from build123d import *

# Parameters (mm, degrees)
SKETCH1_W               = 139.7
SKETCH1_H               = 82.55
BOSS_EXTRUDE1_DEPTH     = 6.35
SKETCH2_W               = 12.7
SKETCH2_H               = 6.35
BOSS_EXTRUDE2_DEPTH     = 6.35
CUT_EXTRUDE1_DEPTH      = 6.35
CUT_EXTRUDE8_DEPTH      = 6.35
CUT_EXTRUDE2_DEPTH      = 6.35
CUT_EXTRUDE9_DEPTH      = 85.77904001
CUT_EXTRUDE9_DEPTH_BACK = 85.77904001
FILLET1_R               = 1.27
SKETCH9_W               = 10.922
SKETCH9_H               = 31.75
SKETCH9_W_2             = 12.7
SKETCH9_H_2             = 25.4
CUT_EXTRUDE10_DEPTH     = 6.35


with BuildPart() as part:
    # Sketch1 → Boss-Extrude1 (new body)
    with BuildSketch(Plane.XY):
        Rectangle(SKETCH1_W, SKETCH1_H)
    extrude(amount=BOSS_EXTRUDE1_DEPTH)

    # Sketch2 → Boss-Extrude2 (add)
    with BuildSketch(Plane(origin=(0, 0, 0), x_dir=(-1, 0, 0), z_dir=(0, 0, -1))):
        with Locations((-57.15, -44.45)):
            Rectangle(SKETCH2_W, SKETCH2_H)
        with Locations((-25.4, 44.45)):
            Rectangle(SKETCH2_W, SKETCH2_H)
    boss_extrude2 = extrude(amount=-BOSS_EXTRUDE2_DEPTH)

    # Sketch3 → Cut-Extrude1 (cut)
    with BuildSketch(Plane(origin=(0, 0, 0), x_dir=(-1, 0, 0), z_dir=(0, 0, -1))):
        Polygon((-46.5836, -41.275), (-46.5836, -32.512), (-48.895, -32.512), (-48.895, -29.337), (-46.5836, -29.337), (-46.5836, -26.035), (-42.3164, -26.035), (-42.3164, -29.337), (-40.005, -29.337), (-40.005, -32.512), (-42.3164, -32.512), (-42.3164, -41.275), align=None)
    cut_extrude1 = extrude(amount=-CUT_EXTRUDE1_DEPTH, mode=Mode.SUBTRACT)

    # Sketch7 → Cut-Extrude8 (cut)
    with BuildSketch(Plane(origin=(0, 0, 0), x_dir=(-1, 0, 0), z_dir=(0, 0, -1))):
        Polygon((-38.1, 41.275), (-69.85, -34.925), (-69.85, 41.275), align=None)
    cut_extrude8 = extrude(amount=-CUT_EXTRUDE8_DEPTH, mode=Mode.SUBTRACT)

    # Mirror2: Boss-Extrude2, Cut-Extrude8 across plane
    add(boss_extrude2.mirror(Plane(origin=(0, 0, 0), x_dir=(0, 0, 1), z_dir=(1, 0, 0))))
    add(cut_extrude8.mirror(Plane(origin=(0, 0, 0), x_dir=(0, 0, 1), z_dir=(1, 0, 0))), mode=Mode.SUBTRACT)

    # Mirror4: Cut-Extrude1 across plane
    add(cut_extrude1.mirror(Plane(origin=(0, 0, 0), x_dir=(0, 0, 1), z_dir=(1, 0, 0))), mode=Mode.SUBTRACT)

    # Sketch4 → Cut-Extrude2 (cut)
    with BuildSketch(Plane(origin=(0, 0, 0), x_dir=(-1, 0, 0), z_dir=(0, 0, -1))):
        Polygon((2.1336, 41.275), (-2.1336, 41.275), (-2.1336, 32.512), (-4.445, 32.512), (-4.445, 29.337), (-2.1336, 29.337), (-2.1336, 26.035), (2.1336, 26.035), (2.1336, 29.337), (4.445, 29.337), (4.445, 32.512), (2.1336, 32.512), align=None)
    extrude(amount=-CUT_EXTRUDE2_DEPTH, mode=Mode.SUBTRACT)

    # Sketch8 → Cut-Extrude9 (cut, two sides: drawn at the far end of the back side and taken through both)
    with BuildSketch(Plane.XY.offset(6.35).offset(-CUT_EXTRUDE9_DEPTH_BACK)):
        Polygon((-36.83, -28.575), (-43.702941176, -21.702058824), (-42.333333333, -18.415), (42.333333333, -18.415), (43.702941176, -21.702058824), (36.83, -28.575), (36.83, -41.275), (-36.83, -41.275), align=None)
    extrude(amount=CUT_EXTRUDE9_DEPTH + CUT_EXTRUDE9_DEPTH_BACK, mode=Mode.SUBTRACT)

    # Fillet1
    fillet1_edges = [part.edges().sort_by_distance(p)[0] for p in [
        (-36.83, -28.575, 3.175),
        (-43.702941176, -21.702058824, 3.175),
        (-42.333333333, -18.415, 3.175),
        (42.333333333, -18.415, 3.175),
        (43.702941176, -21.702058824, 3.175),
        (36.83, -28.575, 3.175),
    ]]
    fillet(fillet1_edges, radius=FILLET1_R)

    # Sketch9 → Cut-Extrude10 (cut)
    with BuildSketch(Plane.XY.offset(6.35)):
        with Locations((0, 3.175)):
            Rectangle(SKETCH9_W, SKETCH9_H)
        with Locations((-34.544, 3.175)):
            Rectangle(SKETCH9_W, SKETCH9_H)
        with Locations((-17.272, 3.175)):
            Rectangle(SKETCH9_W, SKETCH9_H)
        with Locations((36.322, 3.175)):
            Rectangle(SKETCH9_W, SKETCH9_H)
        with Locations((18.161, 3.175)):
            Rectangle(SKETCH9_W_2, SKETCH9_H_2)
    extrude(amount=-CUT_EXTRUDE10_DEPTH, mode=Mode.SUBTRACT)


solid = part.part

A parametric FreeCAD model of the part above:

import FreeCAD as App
import Part
import Sketcher
Q = App.Units.Quantity


def edges_at(feature, points):
    """Names of the edges that pass closest to the given points."""
    edges = feature.Shape.Edges
    near = lambda p: min(range(len(edges)), key=lambda i: edges[i].distToShape(Part.Vertex(*p))[0])
    return sorted({f"Edge{near(p) + 1}" for p in points})

doc = App.newDocument("Part")
body = doc.addObject("PartDesign::Body", "Body")

# Sketch on XY plane
sketch1 = doc.addObject("Sketcher::SketchObject", "Sketch")
body.addObject(sketch1)
sketch1.AttachmentSupport = (doc.XY_Plane, [""])
sketch1.MapMode = "FlatFace"
sketch1.addGeometry([
    Part.LineSegment(App.Vector(-70, 41, 0), App.Vector(-70, -41, 0)),
    Part.LineSegment(App.Vector(-70, -41, 0), App.Vector(70, -41, 0)),
    Part.LineSegment(App.Vector(70, -41, 0), App.Vector(70, 41, 0)),
    Part.LineSegment(App.Vector(70, 41, 0), App.Vector(-70, 41, 0)),
], False)
sketch1.addConstraint([
    Sketcher.Constraint("Coincident", 0, 2, 1, 1),
    Sketcher.Constraint("Coincident", 1, 2, 2, 1),
    Sketcher.Constraint("Coincident", 2, 2, 3, 1),
    Sketcher.Constraint("Coincident", 3, 2, 0, 1),
    Sketcher.Constraint("Vertical", 0),
    Sketcher.Constraint("Horizontal", 1),
    Sketcher.Constraint("Vertical", 2),
    Sketcher.Constraint("Horizontal", 3),
    Sketcher.Constraint("Symmetric", 0, 2, 2, 2, -1, 1),
    Sketcher.Constraint("DistanceX", 1, 1, 1, 2, Q("5.5 in")),
    Sketcher.Constraint("DistanceY", 0, 2, 0, 1, Q("3.25 in")),
])
pad1 = doc.addObject("PartDesign::Pad", "Pad")
body.addObject(pad1)
pad1.Profile = sketch1
pad1.Length = Q("0.25 in")

# Sketch on XY plane
sketch2 = doc.addObject("Sketcher::SketchObject", "Sketch001")
body.addObject(sketch2)
sketch2.AttachmentSupport = (doc.XY_Plane, [""])
sketch2.MapMode = "FlatFace"
sketch2.addGeometry([
    Part.LineSegment(App.Vector(64, -41, 0), App.Vector(64, -48, 0)),  # 0
    Part.LineSegment(App.Vector(64, -48, 0), App.Vector(51, -48, 0)),  # 1
    Part.LineSegment(App.Vector(51, -48, 0), App.Vector(51, -41, 0)),  # 2
    Part.LineSegment(App.Vector(51, -41, 0), App.Vector(64, -41, 0)),  # 3
    Part.LineSegment(App.Vector(32, 48, 0), App.Vector(32, 41, 0)),  # 4
    Part.LineSegment(App.Vector(32, 41, 0), App.Vector(19, 41, 0)),  # 5
    Part.LineSegment(App.Vector(19, 41, 0), App.Vector(19, 48, 0)),  # 6
    Part.LineSegment(App.Vector(19, 48, 0), App.Vector(32, 48, 0)),  # 7
], False)
sketch2.addConstraint([
    Sketcher.Constraint("Coincident", 0, 2, 1, 1),
    Sketcher.Constraint("Coincident", 1, 2, 2, 1),
    Sketcher.Constraint("Coincident", 2, 2, 3, 1),
    Sketcher.Constraint("Coincident", 3, 2, 0, 1),
    Sketcher.Constraint("Coincident", 4, 2, 5, 1),
    Sketcher.Constraint("Coincident", 5, 2, 6, 1),
    Sketcher.Constraint("Coincident", 6, 2, 7, 1),
    Sketcher.Constraint("Coincident", 7, 2, 4, 1),
    Sketcher.Constraint("Vertical", 0),
    Sketcher.Constraint("Horizontal", 1),
    Sketcher.Constraint("Vertical", 2),
    Sketcher.Constraint("Horizontal", 3),
    Sketcher.Constraint("Vertical", 4),
    Sketcher.Constraint("Horizontal", 5),
    Sketcher.Constraint("Vertical", 6),
    Sketcher.Constraint("Horizontal", 7),
    Sketcher.Constraint("Equal", 3, 5),
    Sketcher.Constraint("Equal", 2, 4),
    Sketcher.Constraint("DistanceX", 1, 2, 1, 1, Q("0.5 in")),
    Sketcher.Constraint("DistanceX", -1, 1, 1, 2, Q("2 in")),
    Sketcher.Constraint("DistanceY", 0, 2, 0, 1, Q("0.25 in")),
    Sketcher.Constraint("DistanceY", 1, 2, 4, 2, Q("3.5 in")),
    Sketcher.Constraint("DistanceX", -1, 1, 4, 2, Q("1.25 in")),
    Sketcher.Constraint("DistanceY", 0, 2, -1, 1, Q("1.875 in")),
])
pad2 = doc.addObject("PartDesign::Pad", "Pad001")
body.addObject(pad2)
pad2.Profile = sketch2
pad2.Length = Q("0.25 in")

# Sketch on XY plane
sketch3 = doc.addObject("Sketcher::SketchObject", "Sketch002")
body.addObject(sketch3)
sketch3.AttachmentSupport = (doc.XY_Plane, [""])
sketch3.MapMode = "FlatFace"
sketch3.addGeometry([
    Part.LineSegment(App.Vector(46.6, -32.5, 0), App.Vector(46.6, -41.3, 0)),  # 0
    Part.LineSegment(App.Vector(46.6, -41.3, 0), App.Vector(42.3, -41.3, 0)),  # 1
    Part.LineSegment(App.Vector(42.3, -41.3, 0), App.Vector(42.3, -32.5, 0)),  # 2
    Part.LineSegment(App.Vector(42.3, -32.5, 0), App.Vector(40, -32.5, 0)),  # 3
    Part.LineSegment(App.Vector(40, -32.5, 0), App.Vector(40, -29.3, 0)),  # 4
    Part.LineSegment(App.Vector(40, -29.3, 0), App.Vector(42.3, -29.3, 0)),  # 5
    Part.LineSegment(App.Vector(42.3, -29.3, 0), App.Vector(42.3, -26, 0)),  # 6
    Part.LineSegment(App.Vector(42.3, -26, 0), App.Vector(46.6, -26, 0)),  # 7
    Part.LineSegment(App.Vector(46.6, -26, 0), App.Vector(46.6, -29.3, 0)),  # 8
    Part.LineSegment(App.Vector(46.6, -29.3, 0), App.Vector(48.9, -29.3, 0)),  # 9
    Part.LineSegment(App.Vector(48.9, -29.3, 0), App.Vector(48.9, -32.5, 0)),  # 10
    Part.LineSegment(App.Vector(48.9, -32.5, 0), App.Vector(46.6, -32.5, 0)),  # 11
], False)
sketch3.addConstraint([
    Sketcher.Constraint("Coincident", 0, 2, 1, 1),
    Sketcher.Constraint("Coincident", 1, 2, 2, 1),
    Sketcher.Constraint("Coincident", 2, 2, 3, 1),
    Sketcher.Constraint("Coincident", 3, 2, 4, 1),
    Sketcher.Constraint("Coincident", 4, 2, 5, 1),
    Sketcher.Constraint("Coincident", 5, 2, 6, 1),
    Sketcher.Constraint("Coincident", 6, 2, 7, 1),
    Sketcher.Constraint("Coincident", 7, 2, 8, 1),
    Sketcher.Constraint("Coincident", 8, 2, 9, 1),
    Sketcher.Constraint("Coincident", 9, 2, 10, 1),
    Sketcher.Constraint("Coincident", 10, 2, 11, 1),
    Sketcher.Constraint("Coincident", 11, 2, 0, 1),
    Sketcher.Constraint("Vertical", 0),
    Sketcher.Constraint("Horizontal", 1),
    Sketcher.Constraint("Vertical", 2),
    Sketcher.Constraint("Horizontal", 3),
    Sketcher.Constraint("Vertical", 4),
    Sketcher.Constraint("Horizontal", 5),
    Sketcher.Constraint("Vertical", 6),
    Sketcher.Constraint("Horizontal", 7),
    Sketcher.Constraint("Vertical", 8),
    Sketcher.Constraint("Horizontal", 9),
    Sketcher.Constraint("Vertical", 10),
    Sketcher.Constraint("Horizontal", 11),
    Sketcher.Constraint("Horizontal", 5, 2, 8, 2),
    Sketcher.Constraint("Horizontal", 3, 2, 10, 2),
    Sketcher.Constraint("Vertical", 2, 2, 5, 2),
    Sketcher.Constraint("Vertical", 0, 2, 7, 2),
    Sketcher.Constraint("Equal", 5, 9),
    Sketcher.Constraint("DistanceY", 6, 1, 6, 2, Q("0.13 in")),
    Sketcher.Constraint("DistanceY", 1, 2, 6, 2, Q("0.6 in")),
    Sketcher.Constraint("DistanceX", 1, 2, 1, 1, Q("0.168 in")),
    Sketcher.Constraint("DistanceX", 3, 2, 3, 1, Q("0.091 in")),
    Sketcher.Constraint("DistanceY", 0, 2, 0, 1, Q("0.345 in")),
    Sketcher.Constraint("DistanceY", 2, 2, -1, 1, Q("1.28 in")),
    Sketcher.Constraint("DistanceX", -1, 1, 0, 2, Q("1.834 in")),
])
pocket1 = doc.addObject("PartDesign::Pocket", "Pocket")
body.addObject(pocket1)
pocket1.Profile = sketch3
pocket1.Length = Q("0.25 in")
pocket1.Reversed = True

# Sketch on XY plane
sketch4 = doc.addObject("Sketcher::SketchObject", "Sketch003")
body.addObject(sketch4)
sketch4.AttachmentSupport = (doc.XY_Plane, [""])
sketch4.MapMode = "FlatFace"
sketch4.addGeometry([
    Part.LineSegment(App.Vector(70, -35, 0), App.Vector(38, 41, 0)),
    Part.LineSegment(App.Vector(38, 41, 0), App.Vector(70, 41, 0)),
    Part.LineSegment(App.Vector(70, 41, 0), App.Vector(70, -35, 0)),
], False)
sketch4.addConstraint([
    Sketcher.Constraint("Coincident", 0, 2, 1, 1),
    Sketcher.Constraint("Coincident", 1, 2, 2, 1),
    Sketcher.Constraint("Coincident", 2, 2, 0, 1),
    Sketcher.Constraint("Horizontal", 1),
    Sketcher.Constraint("Vertical", 2),
    Sketcher.Constraint("DistanceY", 2, 2, 2, 1, Q("3 in")),
    Sketcher.Constraint("DistanceX", 1, 1, 1, 2, Q("1.25 in")),
    Sketcher.Constraint("DistanceX", -1, 1, 0, 2, Q("1.5 in")),
    Sketcher.Constraint("DistanceY", -1, 1, 0, 2, Q("1.625 in")),
])
pocket2 = doc.addObject("PartDesign::Pocket", "Pocket001")
body.addObject(pocket2)
pocket2.Profile = sketch4
pocket2.Length = Q("0.25 in")
pocket2.Reversed = True
doc.recompute()

mirrored = doc.addObject("PartDesign::Mirrored", "Mirrored")
body.addObject(mirrored)
mirrored.Originals = [pad2, pocket2]
mirrored.MirrorPlane = (doc.YZ_Plane, [""])
body.Tip = mirrored
doc.recompute()

mirrored2 = doc.addObject("PartDesign::Mirrored", "Mirrored001")
body.addObject(mirrored2)
mirrored2.Originals = [pocket1]
mirrored2.MirrorPlane = (doc.YZ_Plane, [""])
body.Tip = mirrored2

# Sketch on XY plane
sketch5 = doc.addObject("Sketcher::SketchObject", "Sketch004")
body.addObject(sketch5)
sketch5.AttachmentSupport = (doc.XY_Plane, [""])
sketch5.MapMode = "FlatFace"
sketch5.addGeometry([
    Part.LineSegment(App.Vector(-2.1, 41.3, 0), App.Vector(2.1, 41.3, 0)),  # 0
    Part.LineSegment(App.Vector(2.1, 41.3, 0), App.Vector(2.1, 32.5, 0)),  # 1
    Part.LineSegment(App.Vector(2.1, 32.5, 0), App.Vector(4.4, 32.5, 0)),  # 2
    Part.LineSegment(App.Vector(4.4, 32.5, 0), App.Vector(4.4, 29.3, 0)),  # 3
    Part.LineSegment(App.Vector(4.4, 29.3, 0), App.Vector(2.1, 29.3, 0)),  # 4
    Part.LineSegment(App.Vector(2.1, 29.3, 0), App.Vector(2.1, 26, 0)),  # 5
    Part.LineSegment(App.Vector(2.1, 26, 0), App.Vector(-2.1, 26, 0)),  # 6
    Part.LineSegment(App.Vector(-2.1, 26, 0), App.Vector(-2.1, 29.3, 0)),  # 7
    Part.LineSegment(App.Vector(-2.1, 29.3, 0), App.Vector(-4.4, 29.3, 0)),  # 8
    Part.LineSegment(App.Vector(-4.4, 29.3, 0), App.Vector(-4.4, 32.5, 0)),  # 9
    Part.LineSegment(App.Vector(-4.4, 32.5, 0), App.Vector(-2.1, 32.5, 0)),  # 10
    Part.LineSegment(App.Vector(-2.1, 32.5, 0), App.Vector(-2.1, 41.3, 0)),  # 11
], False)
sketch5.addConstraint([
    Sketcher.Constraint("Coincident", 0, 2, 1, 1),
    Sketcher.Constraint("Coincident", 1, 2, 2, 1),
    Sketcher.Constraint("Coincident", 2, 2, 3, 1),
    Sketcher.Constraint("Coincident", 3, 2, 4, 1),
    Sketcher.Constraint("Coincident", 4, 2, 5, 1),
    Sketcher.Constraint("Coincident", 5, 2, 6, 1),
    Sketcher.Constraint("Coincident", 6, 2, 7, 1),
    Sketcher.Constraint("Coincident", 7, 2, 8, 1),
    Sketcher.Constraint("Coincident", 8, 2, 9, 1),
    Sketcher.Constraint("Coincident", 9, 2, 10, 1),
    Sketcher.Constraint("Coincident", 10, 2, 11, 1),
    Sketcher.Constraint("Coincident", 11, 2, 0, 1),
    Sketcher.Constraint("Horizontal", 0),
    Sketcher.Constraint("Vertical", 1),
    Sketcher.Constraint("Horizontal", 2),
    Sketcher.Constraint("Vertical", 3),
    Sketcher.Constraint("Horizontal", 4),
    Sketcher.Constraint("Vertical", 5),
    Sketcher.Constraint("Horizontal", 6),
    Sketcher.Constraint("Vertical", 7),
    Sketcher.Constraint("Horizontal", 8),
    Sketcher.Constraint("Vertical", 9),
    Sketcher.Constraint("Horizontal", 10),
    Sketcher.Constraint("Vertical", 11),
    Sketcher.Constraint("Symmetric", 4, 2, 7, 2, -2),
    Sketcher.Constraint("Symmetric", 2, 2, 9, 2, -2),
    Sketcher.Constraint("Vertical", 1, 2, 4, 2),
    Sketcher.Constraint("Vertical", 7, 2, 10, 2),
    Sketcher.Constraint("DistanceY", 5, 2, 5, 1, Q("0.13 in")),
    Sketcher.Constraint("DistanceY", 5, 2, 0, 2, Q("0.6 in")),
    Sketcher.Constraint("DistanceX", 0, 1, 0, 2, Q("0.168 in")),
    Sketcher.Constraint("DistanceX", 2, 1, 2, 2, Q("0.091 in")),
    Sketcher.Constraint("DistanceY", 1, 2, 1, 1, Q("0.345 in")),
    Sketcher.Constraint("DistanceY", -1, 1, 1, 2, Q("1.28 in")),
])
pocket3 = doc.addObject("PartDesign::Pocket", "Pocket002")
body.addObject(pocket3)
pocket3.Profile = sketch5
pocket3.Length = Q("0.25 in")
pocket3.Reversed = True

# Sketch on XY plane
sketch6 = doc.addObject("Sketcher::SketchObject", "Sketch005")
body.addObject(sketch6)
sketch6.AttachmentSupport = (doc.XY_Plane, [""])
sketch6.MapMode = "FlatFace"
sketch6.AttachmentOffset = App.Placement(App.Vector(0, 0, 0.25 * 25.4), App.Rotation())
sketch6.addGeometry([
    Part.LineSegment(App.Vector(-43.7, -21.7, 0), App.Vector(-36.8, -28.6, 0)),  # 0
    Part.LineSegment(App.Vector(-36.8, -28.6, 0), App.Vector(-36.8, -41.3, 0)),  # 1
    Part.LineSegment(App.Vector(-36.8, -41.3, 0), App.Vector(36.8, -41.3, 0)),  # 2
    Part.LineSegment(App.Vector(36.8, -41.3, 0), App.Vector(36.8, -28.6, 0)),  # 3
    Part.LineSegment(App.Vector(36.8, -28.6, 0), App.Vector(43.7, -21.7, 0)),  # 4
    Part.LineSegment(App.Vector(43.7, -21.7, 0), App.Vector(42.3, -18.4, 0)),  # 5
    Part.LineSegment(App.Vector(42.3, -18.4, 0), App.Vector(-42.3, -18.4, 0)),  # 6
    Part.LineSegment(App.Vector(-42.3, -18.4, 0), App.Vector(-43.7, -21.7, 0)),  # 7
], False)
sketch6.addConstraint([
    Sketcher.Constraint("Coincident", 0, 2, 1, 1),
    Sketcher.Constraint("Coincident", 1, 2, 2, 1),
    Sketcher.Constraint("Coincident", 2, 2, 3, 1),
    Sketcher.Constraint("Coincident", 3, 2, 4, 1),
    Sketcher.Constraint("Coincident", 4, 2, 5, 1),
    Sketcher.Constraint("Coincident", 5, 2, 6, 1),
    Sketcher.Constraint("Coincident", 6, 2, 7, 1),
    Sketcher.Constraint("Coincident", 7, 2, 0, 1),
    Sketcher.Constraint("Vertical", 1),
    Sketcher.Constraint("Horizontal", 2),
    Sketcher.Constraint("Vertical", 3),
    Sketcher.Constraint("Horizontal", 6),
    Sketcher.Constraint("Symmetric", 0, 2, 3, 2, -2),
    Sketcher.Constraint("Symmetric", 4, 2, 7, 2, -2),
    Sketcher.Constraint("Perpendicular", 0, 4),
    Sketcher.Constraint("Equal", 5, 7),
    Sketcher.Constraint("DistanceX", 2, 1, 2, 2, Q("2.9 in")),
    Sketcher.Constraint("DistanceY", 1, 2, 1, 1, Q("0.5 in")),
    Sketcher.Constraint("DistanceY", 3, 2, 5, 2, Q("0.4 in")),
    Sketcher.Constraint("DistanceY", 0, 2, -1, 1, Q("1.125 in")),
    Sketcher.Constraint("Distance", 5, 3.56098),
    Sketcher.Constraint("DistanceX", 6, 2, 6, 1, 84.666667),
])
pocket4 = doc.addObject("PartDesign::Pocket", "Pocket003")
body.addObject(pocket4)
pocket4.Profile = sketch6
pocket4.Type = "ThroughAll"
pocket4.Midplane = True
doc.recompute()

fillet = doc.addObject("PartDesign::Fillet", "Fillet")
body.addObject(fillet)
fillet.Base = (pocket4, edges_at(pocket4, [
    (-36.83, -28.575, 3.175),
    (-43.703, -21.702, 3.175),
    (-42.333, -18.415, 3.175),
    (42.333, -18.415, 3.175),
    (43.703, -21.702, 3.175),
    (36.83, -28.575, 3.175),
]))
fillet.Radius = Q("0.05 in")

# Sketch on XY plane
sketch7 = doc.addObject("Sketcher::SketchObject", "Sketch006")
body.addObject(sketch7)
sketch7.AttachmentSupport = (doc.XY_Plane, [""])
sketch7.MapMode = "FlatFace"
sketch7.AttachmentOffset = App.Placement(App.Vector(0, 0, 0.25 * 25.4), App.Rotation())
sketch7.addGeometry([
    Part.LineSegment(App.Vector(-5, 19, 0), App.Vector(-5, -13, 0)),  # 0
    Part.LineSegment(App.Vector(-5, -13, 0), App.Vector(5, -13, 0)),  # 1
    Part.LineSegment(App.Vector(5, -13, 0), App.Vector(5, 19, 0)),  # 2
    Part.LineSegment(App.Vector(5, 19, 0), App.Vector(-5, 19, 0)),  # 3
    Part.LineSegment(App.Vector(-40, 19, 0), App.Vector(-40, -13, 0)),  # 4
    Part.LineSegment(App.Vector(-40, -13, 0), App.Vector(-29, -13, 0)),  # 5
    Part.LineSegment(App.Vector(-29, -13, 0), App.Vector(-29, 19, 0)),  # 6
    Part.LineSegment(App.Vector(-29, 19, 0), App.Vector(-40, 19, 0)),  # 7
    Part.LineSegment(App.Vector(-23, 19, 0), App.Vector(-23, -13, 0)),  # 8
    Part.LineSegment(App.Vector(-23, -13, 0), App.Vector(-12, -13, 0)),  # 9
    Part.LineSegment(App.Vector(-12, -13, 0), App.Vector(-12, 19, 0)),  # 10
    Part.LineSegment(App.Vector(-12, 19, 0), App.Vector(-23, 19, 0)),  # 11
    Part.LineSegment(App.Vector(31, 19, 0), App.Vector(31, -13, 0)),  # 12
    Part.LineSegment(App.Vector(31, -13, 0), App.Vector(42, -13, 0)),  # 13
    Part.LineSegment(App.Vector(42, -13, 0), App.Vector(42, 19, 0)),  # 14
    Part.LineSegment(App.Vector(42, 19, 0), App.Vector(31, 19, 0)),  # 15
    Part.LineSegment(App.Vector(12, 16, 0), App.Vector(12, -10, 0)),  # 16
    Part.LineSegment(App.Vector(12, -10, 0), App.Vector(25, -10, 0)),  # 17
    Part.LineSegment(App.Vector(25, -10, 0), App.Vector(25, 16, 0)),  # 18
    Part.LineSegment(App.Vector(25, 16, 0), App.Vector(12, 16, 0)),  # 19
], False)
sketch7.addConstraint([
    Sketcher.Constraint("Coincident", 0, 2, 1, 1),
    Sketcher.Constraint("Coincident", 1, 2, 2, 1),
    Sketcher.Constraint("Coincident", 2, 2, 3, 1),
    Sketcher.Constraint("Coincident", 3, 2, 0, 1),
    Sketcher.Constraint("Coincident", 4, 2, 5, 1),
    Sketcher.Constraint("Coincident", 5, 2, 6, 1),
    Sketcher.Constraint("Coincident", 6, 2, 7, 1),
    Sketcher.Constraint("Coincident", 7, 2, 4, 1),
    Sketcher.Constraint("Coincident", 8, 2, 9, 1),
    Sketcher.Constraint("Coincident", 9, 2, 10, 1),
    Sketcher.Constraint("Coincident", 10, 2, 11, 1),
    Sketcher.Constraint("Coincident", 11, 2, 8, 1),
    Sketcher.Constraint("Coincident", 12, 2, 13, 1),
    Sketcher.Constraint("Coincident", 13, 2, 14, 1),
    Sketcher.Constraint("Coincident", 14, 2, 15, 1),
    Sketcher.Constraint("Coincident", 15, 2, 12, 1),
    Sketcher.Constraint("Coincident", 16, 2, 17, 1),
    Sketcher.Constraint("Coincident", 17, 2, 18, 1),
    Sketcher.Constraint("Coincident", 18, 2, 19, 1),
    Sketcher.Constraint("Coincident", 19, 2, 16, 1),
    Sketcher.Constraint("Vertical", 0),
    Sketcher.Constraint("Horizontal", 1),
    Sketcher.Constraint("Vertical", 2),
    Sketcher.Constraint("Horizontal", 3),
    Sketcher.Constraint("Vertical", 4),
    Sketcher.Constraint("Horizontal", 5),
    Sketcher.Constraint("Vertical", 6),
    Sketcher.Constraint("Horizontal", 7),
    Sketcher.Constraint("Vertical", 8),
    Sketcher.Constraint("Horizontal", 9),
    Sketcher.Constraint("Vertical", 10),
    Sketcher.Constraint("Horizontal", 11),
    Sketcher.Constraint("Vertical", 12),
    Sketcher.Constraint("Horizontal", 13),
    Sketcher.Constraint("Vertical", 14),
    Sketcher.Constraint("Horizontal", 15),
    Sketcher.Constraint("Vertical", 16),
    Sketcher.Constraint("Horizontal", 17),
    Sketcher.Constraint("Vertical", 18),
    Sketcher.Constraint("Horizontal", 19),
    Sketcher.Constraint("Horizontal", 1, 2, 4, 2),
    Sketcher.Constraint("Horizontal", 3, 2, 6, 2),
    Sketcher.Constraint("Horizontal", 5, 2, 8, 2),
    Sketcher.Constraint("Horizontal", 7, 2, 10, 2),
    Sketcher.Constraint("Horizontal", 9, 2, 12, 2),
    Sketcher.Constraint("Horizontal", 11, 2, 14, 2),
    Sketcher.Constraint("Equal", 3, 5),
    Sketcher.Constraint("Equal", 7, 9),
    Sketcher.Constraint("Equal", 11, 13),
    Sketcher.Constraint("DistanceY", 16, 2, 16, 1, Q("1 in")),
    Sketcher.Constraint("DistanceX", 17, 1, 17, 2, Q("0.5 in")),
    Sketcher.Constraint("DistanceX", 1, 2, 12, 2, Q("1 in")),
    Sketcher.Constraint("DistanceX", 1, 1, 1, 2, Q("0.43 in")),
    Sketcher.Constraint("DistanceY", 0, 2, 0, 1, Q("1.25 in")),
    Sketcher.Constraint("DistanceY", 0, 2, -1, 1, Q("0.5 in")),
    Sketcher.Constraint("DistanceX", 4, 2, 0, 2, Q("1.36 in")),
    Sketcher.Constraint("DistanceX", 5, 2, 8, 2, Q("0.25 in")),
    Sketcher.Constraint("DistanceX", 1, 2, 16, 2, Q("0.25 in")),
    Sketcher.Constraint("DistanceX", 0, 2, -1, 1, Q("0.215 in")),
    Sketcher.Constraint("DistanceY", 16, 2, -1, 1, Q("0.375 in")),
])
pocket5 = doc.addObject("PartDesign::Pocket", "Pocket004")
body.addObject(pocket5)
pocket5.Profile = sketch7
pocket5.Length = Q("0.25 in")

doc.recompute()
